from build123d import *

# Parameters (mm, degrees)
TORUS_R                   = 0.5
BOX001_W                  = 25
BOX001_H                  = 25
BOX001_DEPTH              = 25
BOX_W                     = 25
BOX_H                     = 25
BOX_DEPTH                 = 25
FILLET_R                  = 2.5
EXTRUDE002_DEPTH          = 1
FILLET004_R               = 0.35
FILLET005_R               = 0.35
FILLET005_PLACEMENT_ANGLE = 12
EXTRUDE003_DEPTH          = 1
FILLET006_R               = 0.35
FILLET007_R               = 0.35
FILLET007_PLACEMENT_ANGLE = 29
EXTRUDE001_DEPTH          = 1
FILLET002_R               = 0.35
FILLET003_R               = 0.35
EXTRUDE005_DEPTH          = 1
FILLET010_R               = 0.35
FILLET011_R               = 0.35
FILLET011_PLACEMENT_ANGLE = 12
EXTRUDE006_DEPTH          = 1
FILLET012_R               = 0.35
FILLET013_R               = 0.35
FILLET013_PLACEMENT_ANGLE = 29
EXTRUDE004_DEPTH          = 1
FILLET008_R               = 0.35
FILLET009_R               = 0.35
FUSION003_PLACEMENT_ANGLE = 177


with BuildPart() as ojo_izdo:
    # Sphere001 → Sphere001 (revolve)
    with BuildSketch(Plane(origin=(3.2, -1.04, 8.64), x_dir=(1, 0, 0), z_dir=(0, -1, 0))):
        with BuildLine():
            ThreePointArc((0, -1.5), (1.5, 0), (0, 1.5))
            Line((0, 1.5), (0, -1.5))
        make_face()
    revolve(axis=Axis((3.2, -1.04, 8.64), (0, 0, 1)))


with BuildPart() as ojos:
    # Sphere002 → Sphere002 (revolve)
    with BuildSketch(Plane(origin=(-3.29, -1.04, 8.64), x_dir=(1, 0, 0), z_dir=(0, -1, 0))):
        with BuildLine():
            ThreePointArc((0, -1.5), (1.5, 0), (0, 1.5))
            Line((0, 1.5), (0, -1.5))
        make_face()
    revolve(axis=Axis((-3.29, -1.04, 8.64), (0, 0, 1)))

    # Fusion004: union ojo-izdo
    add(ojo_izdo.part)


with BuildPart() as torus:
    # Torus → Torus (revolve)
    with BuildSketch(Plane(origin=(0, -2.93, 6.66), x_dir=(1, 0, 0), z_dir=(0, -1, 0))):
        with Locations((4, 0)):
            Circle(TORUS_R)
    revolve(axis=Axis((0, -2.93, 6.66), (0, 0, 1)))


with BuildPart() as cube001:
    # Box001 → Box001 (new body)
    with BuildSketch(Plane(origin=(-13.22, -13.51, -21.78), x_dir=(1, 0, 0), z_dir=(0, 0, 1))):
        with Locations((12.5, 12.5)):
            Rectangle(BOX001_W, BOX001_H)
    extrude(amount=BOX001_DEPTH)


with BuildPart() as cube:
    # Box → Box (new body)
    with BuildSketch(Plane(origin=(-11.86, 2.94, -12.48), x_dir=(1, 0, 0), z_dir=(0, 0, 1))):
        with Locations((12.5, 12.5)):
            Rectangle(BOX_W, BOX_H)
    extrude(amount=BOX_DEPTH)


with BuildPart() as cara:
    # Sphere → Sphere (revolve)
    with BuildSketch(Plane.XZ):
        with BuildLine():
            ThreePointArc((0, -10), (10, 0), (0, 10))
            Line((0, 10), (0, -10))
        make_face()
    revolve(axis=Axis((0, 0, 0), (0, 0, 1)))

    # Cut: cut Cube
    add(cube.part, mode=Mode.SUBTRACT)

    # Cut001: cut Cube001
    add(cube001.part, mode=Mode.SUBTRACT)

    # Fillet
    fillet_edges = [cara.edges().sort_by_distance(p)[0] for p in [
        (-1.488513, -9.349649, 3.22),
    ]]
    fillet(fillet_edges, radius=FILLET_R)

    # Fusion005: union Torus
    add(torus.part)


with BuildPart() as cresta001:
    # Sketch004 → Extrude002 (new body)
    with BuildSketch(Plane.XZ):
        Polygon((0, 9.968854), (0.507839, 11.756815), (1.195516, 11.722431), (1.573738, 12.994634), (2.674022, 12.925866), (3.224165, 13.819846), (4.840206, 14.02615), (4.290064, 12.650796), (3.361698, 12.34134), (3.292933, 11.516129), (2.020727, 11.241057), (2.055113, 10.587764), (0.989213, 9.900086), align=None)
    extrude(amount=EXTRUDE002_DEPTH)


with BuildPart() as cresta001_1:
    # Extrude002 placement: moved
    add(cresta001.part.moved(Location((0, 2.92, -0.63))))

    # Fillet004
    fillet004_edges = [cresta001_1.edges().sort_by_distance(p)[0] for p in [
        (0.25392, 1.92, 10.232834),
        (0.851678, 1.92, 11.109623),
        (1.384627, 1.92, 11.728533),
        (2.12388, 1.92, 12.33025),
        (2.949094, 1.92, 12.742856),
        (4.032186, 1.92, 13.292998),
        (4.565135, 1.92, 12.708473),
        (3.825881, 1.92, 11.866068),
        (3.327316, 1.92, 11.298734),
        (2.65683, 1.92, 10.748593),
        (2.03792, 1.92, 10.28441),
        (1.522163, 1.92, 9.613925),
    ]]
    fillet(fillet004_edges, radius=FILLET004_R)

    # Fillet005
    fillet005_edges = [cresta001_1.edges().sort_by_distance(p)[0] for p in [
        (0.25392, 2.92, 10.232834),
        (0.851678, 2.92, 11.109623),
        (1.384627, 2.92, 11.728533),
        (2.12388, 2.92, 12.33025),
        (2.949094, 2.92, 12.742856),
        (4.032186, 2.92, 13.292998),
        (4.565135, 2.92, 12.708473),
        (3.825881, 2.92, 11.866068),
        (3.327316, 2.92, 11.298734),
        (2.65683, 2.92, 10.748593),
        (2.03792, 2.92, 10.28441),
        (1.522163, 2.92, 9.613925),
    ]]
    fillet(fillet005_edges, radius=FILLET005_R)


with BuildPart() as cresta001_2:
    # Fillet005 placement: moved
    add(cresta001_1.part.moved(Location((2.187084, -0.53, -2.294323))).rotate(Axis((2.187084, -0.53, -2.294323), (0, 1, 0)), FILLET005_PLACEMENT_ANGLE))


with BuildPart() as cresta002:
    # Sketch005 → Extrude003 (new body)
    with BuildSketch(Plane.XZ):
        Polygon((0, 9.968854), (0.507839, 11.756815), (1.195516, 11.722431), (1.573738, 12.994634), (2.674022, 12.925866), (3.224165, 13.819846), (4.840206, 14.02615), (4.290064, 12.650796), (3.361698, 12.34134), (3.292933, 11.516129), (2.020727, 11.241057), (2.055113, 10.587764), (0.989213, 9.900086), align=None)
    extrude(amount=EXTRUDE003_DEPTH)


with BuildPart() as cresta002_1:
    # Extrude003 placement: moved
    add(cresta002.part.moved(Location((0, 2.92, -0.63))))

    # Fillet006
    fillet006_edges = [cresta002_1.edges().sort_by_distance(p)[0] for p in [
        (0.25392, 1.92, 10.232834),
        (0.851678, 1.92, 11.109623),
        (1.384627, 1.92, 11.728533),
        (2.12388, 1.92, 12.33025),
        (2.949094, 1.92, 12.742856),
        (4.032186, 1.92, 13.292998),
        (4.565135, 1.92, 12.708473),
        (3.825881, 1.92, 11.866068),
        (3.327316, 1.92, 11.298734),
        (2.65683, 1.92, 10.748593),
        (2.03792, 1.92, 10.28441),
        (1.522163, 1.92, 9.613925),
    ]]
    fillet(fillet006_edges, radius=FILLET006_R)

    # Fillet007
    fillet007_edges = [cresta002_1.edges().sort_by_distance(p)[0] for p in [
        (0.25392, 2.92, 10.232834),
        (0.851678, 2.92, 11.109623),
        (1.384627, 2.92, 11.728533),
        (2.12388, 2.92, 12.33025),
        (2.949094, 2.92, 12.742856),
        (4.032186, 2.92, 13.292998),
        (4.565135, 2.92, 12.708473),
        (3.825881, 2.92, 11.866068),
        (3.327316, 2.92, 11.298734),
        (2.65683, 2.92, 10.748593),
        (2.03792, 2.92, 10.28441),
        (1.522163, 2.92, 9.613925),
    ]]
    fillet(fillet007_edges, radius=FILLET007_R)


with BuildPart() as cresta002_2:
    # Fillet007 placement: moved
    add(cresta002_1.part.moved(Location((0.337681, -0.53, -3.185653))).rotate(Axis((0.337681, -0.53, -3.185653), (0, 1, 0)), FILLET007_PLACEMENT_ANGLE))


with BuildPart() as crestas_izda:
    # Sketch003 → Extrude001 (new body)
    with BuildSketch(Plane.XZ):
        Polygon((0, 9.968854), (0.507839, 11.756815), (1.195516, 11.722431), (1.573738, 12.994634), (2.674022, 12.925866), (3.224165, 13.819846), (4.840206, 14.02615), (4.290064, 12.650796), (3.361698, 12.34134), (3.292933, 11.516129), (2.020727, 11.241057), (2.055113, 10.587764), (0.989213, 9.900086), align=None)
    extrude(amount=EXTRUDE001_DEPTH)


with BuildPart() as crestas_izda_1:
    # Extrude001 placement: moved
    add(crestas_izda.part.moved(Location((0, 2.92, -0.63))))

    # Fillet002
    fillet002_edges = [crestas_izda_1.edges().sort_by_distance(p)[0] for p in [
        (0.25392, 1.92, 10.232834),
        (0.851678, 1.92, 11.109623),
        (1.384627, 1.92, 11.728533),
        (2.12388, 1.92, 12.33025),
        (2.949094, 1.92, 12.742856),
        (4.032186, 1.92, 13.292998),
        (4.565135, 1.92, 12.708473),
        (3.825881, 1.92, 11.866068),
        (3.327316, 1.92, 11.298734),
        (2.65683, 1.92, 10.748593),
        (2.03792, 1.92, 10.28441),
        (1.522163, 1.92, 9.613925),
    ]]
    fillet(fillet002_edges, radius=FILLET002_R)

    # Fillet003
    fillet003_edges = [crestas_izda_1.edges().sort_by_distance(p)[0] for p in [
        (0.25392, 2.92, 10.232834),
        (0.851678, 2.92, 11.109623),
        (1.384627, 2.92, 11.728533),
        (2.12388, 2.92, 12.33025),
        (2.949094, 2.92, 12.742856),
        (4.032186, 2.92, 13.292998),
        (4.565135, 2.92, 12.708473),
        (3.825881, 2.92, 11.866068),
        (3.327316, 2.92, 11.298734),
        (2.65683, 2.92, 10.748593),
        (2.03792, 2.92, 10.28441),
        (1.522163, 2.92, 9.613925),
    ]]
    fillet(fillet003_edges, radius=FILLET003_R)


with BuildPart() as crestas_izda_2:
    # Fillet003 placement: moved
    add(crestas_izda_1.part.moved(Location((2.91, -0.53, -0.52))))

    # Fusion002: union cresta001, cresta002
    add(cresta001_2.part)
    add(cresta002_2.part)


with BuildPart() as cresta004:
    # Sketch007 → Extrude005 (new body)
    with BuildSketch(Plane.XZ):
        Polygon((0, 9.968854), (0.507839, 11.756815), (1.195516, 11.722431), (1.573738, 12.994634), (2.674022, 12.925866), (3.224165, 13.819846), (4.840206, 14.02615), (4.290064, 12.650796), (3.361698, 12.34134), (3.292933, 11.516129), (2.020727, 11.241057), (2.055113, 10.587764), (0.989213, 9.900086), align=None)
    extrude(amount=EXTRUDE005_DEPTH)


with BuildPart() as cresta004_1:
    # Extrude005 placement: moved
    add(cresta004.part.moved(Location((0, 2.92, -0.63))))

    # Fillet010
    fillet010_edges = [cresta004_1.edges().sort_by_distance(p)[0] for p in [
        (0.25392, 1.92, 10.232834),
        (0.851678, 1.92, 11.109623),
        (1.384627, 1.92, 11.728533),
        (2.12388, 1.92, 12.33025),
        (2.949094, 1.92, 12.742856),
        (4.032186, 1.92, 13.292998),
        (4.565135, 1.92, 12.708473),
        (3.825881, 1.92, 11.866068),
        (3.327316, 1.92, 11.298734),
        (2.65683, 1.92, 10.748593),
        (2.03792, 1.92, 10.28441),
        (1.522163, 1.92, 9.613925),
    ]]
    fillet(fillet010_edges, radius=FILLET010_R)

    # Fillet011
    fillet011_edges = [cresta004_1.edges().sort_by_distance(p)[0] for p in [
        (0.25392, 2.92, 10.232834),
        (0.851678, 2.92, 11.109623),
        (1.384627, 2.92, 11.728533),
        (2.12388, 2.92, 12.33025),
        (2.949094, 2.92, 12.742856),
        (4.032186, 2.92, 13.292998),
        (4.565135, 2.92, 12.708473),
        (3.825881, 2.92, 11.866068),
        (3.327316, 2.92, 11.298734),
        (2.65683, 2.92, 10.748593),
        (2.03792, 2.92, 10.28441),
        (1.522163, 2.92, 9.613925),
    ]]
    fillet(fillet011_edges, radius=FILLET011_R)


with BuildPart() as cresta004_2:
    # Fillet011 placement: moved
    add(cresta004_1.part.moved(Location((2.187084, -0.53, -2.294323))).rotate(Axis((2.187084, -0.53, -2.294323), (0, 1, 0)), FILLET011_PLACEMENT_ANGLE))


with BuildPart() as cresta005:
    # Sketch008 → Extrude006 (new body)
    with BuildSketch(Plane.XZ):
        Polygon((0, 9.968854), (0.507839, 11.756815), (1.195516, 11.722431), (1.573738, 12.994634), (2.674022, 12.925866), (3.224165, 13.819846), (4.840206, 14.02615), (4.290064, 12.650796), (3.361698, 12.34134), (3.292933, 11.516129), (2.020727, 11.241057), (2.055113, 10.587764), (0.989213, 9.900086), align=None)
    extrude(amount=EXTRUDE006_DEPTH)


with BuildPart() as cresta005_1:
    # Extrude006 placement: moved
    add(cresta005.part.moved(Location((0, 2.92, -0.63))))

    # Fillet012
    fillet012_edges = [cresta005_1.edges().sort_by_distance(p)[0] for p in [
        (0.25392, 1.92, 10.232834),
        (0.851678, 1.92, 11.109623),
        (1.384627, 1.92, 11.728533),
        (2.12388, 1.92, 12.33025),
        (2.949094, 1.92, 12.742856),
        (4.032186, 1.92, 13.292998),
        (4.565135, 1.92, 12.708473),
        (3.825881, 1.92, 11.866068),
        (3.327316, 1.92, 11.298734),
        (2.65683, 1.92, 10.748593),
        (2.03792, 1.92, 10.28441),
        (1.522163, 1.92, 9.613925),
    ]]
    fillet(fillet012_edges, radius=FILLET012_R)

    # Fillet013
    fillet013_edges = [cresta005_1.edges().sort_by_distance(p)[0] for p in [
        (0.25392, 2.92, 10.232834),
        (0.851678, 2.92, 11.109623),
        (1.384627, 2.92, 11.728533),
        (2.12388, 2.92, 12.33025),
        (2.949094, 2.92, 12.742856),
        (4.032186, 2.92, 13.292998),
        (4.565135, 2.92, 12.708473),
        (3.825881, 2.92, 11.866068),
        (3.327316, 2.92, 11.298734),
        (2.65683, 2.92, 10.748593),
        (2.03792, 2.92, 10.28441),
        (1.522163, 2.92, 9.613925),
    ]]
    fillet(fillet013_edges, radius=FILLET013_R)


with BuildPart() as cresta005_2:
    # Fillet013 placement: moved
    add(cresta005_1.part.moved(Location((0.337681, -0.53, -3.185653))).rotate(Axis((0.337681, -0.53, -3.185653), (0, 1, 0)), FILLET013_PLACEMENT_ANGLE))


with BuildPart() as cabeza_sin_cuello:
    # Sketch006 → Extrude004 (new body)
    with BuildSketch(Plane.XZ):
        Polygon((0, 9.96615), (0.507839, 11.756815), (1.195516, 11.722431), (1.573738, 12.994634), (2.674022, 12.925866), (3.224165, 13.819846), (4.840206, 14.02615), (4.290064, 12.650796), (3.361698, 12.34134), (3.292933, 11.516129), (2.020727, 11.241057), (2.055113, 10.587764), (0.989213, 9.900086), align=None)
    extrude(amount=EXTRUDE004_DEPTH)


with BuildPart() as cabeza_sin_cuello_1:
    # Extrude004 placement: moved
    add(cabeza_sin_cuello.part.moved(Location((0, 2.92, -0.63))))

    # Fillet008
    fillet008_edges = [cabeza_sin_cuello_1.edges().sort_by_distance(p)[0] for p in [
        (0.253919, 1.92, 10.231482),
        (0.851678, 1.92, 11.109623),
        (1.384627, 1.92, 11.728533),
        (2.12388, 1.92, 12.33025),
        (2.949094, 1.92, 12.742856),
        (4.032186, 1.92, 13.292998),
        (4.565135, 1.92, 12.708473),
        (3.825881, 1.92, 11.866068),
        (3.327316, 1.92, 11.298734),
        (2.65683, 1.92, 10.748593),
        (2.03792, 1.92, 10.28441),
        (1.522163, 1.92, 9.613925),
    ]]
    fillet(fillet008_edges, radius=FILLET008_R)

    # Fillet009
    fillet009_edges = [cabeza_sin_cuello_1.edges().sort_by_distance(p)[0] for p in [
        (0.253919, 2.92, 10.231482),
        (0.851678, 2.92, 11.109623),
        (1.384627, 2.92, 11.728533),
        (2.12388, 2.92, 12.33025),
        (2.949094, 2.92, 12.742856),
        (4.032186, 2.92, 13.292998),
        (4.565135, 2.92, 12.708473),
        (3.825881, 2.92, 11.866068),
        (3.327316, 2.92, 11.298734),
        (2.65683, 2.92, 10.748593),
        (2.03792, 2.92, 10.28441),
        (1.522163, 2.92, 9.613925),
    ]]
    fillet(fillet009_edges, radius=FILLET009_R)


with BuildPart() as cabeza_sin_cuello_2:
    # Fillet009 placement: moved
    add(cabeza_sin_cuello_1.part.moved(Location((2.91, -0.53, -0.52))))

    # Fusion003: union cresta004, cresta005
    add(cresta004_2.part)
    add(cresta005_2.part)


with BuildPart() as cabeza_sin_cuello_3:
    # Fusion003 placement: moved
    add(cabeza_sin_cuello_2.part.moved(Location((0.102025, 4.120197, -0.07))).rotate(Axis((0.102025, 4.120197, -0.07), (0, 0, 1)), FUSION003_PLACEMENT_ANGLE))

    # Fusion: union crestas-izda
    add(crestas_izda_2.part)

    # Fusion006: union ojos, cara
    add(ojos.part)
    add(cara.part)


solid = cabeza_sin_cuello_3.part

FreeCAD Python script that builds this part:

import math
import FreeCAD as App
import Part
import Sketcher

V = App.Vector


def edges_at(feature, points):
    """Names of the edges that pass closest to the given points."""
    edges = feature.Shape.Edges
    near = lambda p: min(range(len(edges)), key=lambda i: edges[i].distToShape(Part.Vertex(*p))[0])
    return sorted({f"Edge{near(p) + 1}" for p in points})

doc = App.newDocument("Part")
body = doc.addObject("PartDesign::Body", "Body")

# Sketch on XZ plane
sketch1 = body.newObject("Sketcher::SketchObject", "Sketch")
sketch1.AttachmentSupport = (doc.getObject("XZ_Plane"), [""])
sketch1.MapMode = "FlatFace"
sketch1.AttachmentOffset = App.Placement(V(0, 0, 1.04), App.Rotation())
sketch1.addGeometry([
    Part.ArcOfCircle(Part.Circle(V(3.2, 8.64, 0), V(0, 0, 1), 1.5), math.radians(-90), math.radians(90)),
    Part.LineSegment(V(3.2, 10.14, 0), V(3.2, 7.14, 0)),
], False)
sketch1.addGeometry(Part.LineSegment(V(3.2, 7.14, 0), V(3.2, 10.14, 0)), True)  # axis
sketch1.addConstraint([
    Sketcher.Constraint("Coincident", 0, 1, 1, 2),
    Sketcher.Constraint("Coincident", 1, 1, 0, 2),
    Sketcher.Constraint("Vertical", 1),
    Sketcher.Constraint("Vertical", 2),
    Sketcher.Constraint("Coincident", 2, 1, 0, 1),
    Sketcher.Constraint("Equal", 1, 2),
    Sketcher.Constraint("Radius", 0, 1.5),
    Sketcher.Constraint("DistanceX", -1, 1, 0, 3, 3.2),
    Sketcher.Constraint("DistanceX", -1, 1, 0, 1, 3.2),
    Sketcher.Constraint("DistanceY", -1, 1, 0, 3, 8.64),
])
revolution = body.newObject("PartDesign::Revolution", "Revolution")
revolution.Profile = sketch1
revolution.ReferenceAxis = (sketch1, ["Axis0"])
revolution.Angle = 360
body2 = doc.addObject("PartDesign::Body", "Body001")
body2.AllowCompound = True

# Sketch on XZ plane
sketch2 = body2.newObject("Sketcher::SketchObject", "Sketch001")
sketch2.AttachmentSupport = (doc.getObject("XZ_Plane001"), [""])
sketch2.MapMode = "FlatFace"
sketch2.AttachmentOffset = App.Placement(V(0, 0, 1.04), App.Rotation())
sketch2.addGeometry([
    Part.ArcOfCircle(Part.Circle(V(-3.29, 8.64, 0), V(0, 0, 1), 1.5), math.radians(-90), math.radians(90)),
    Part.LineSegment(V(-3.29, 10.14, 0), V(-3.29, 7.14, 0)),
], False)
sketch2.addGeometry(Part.LineSegment(V(-3.29, 7.14, 0), V(-3.29, 10.14, 0)), True)  # axis
sketch2.addConstraint([
    Sketcher.Constraint("Coincident", 0, 1, 1, 2),
    Sketcher.Constraint("Coincident", 1, 1, 0, 2),
    Sketcher.Constraint("Vertical", 1),
    Sketcher.Constraint("Vertical", 2),
    Sketcher.Constraint("Coincident", 2, 1, 0, 1),
    Sketcher.Constraint("Equal", 1, 2),
    Sketcher.Constraint("Radius", 0, 1.5),
    Sketcher.Constraint("DistanceX", 0, 3, -1, 1, 3.29),
    Sketcher.Constraint("DistanceY", -1, 1, 0, 3, 8.64),
    Sketcher.Constraint("DistanceX", 0, 1, -1, 1, 3.29),
])
revolution2 = body2.newObject("PartDesign::Revolution", "Revolution001")
revolution2.Profile = sketch2
revolution2.ReferenceAxis = (sketch2, ["Axis0"])
revolution2.Angle = 360
doc.recompute()

boolean = body2.newObject("PartDesign::Boolean", "Boolean")
boolean.Type = "Fuse"
boolean.addObjects([body])
body3 = doc.addObject("PartDesign::Body", "Body002")

# Sketch on XZ plane
sketch3 = body3.newObject("Sketcher::SketchObject", "Sketch002")
sketch3.AttachmentSupport = (doc.getObject("XZ_Plane002"), [""])
sketch3.MapMode = "FlatFace"
sketch3.AttachmentOffset = App.Placement(V(0, 0, 2.93), App.Rotation())
sketch3.addGeometry(Part.Circle(V(4, 6.66, 0), V(0, 0, 1), 0.5), False)
sketch3.addConstraint([
    Sketcher.Constraint("Diameter", 0, 1.0),
    Sketcher.Constraint("DistanceX", -1, 1, 0, 3, 4.0),
    Sketcher.Constraint("DistanceY", -1, 1, 0, 3, 6.66),
])
revolution3 = body3.newObject("PartDesign::Revolution", "Revolution002")
revolution3.Profile = sketch3
revolution3.ReferenceAxis = (sketch3, ["V_Axis"])
revolution3.Angle = 360
body4 = doc.addObject("PartDesign::Body", "Body003")

# Sketch on XY plane
sketch4 = body4.newObject("Sketcher::SketchObject", "Sketch003")
sketch4.AttachmentSupport = (doc.getObject("XY_Plane003"), [""])
sketch4.MapMode = "FlatFace"
sketch4.AttachmentOffset = App.Placement(V(0, 0, -21.78), App.Rotation())
sketch4.addGeometry([
    Part.LineSegment(V(-13.22, 11.49, 0), V(-13.22, -13.51, 0)),
    Part.LineSegment(V(-13.22, -13.51, 0), V(11.78, -13.51, 0)),
    Part.LineSegment(V(11.78, -13.51, 0), V(11.78, 11.49, 0)),
    Part.LineSegment(V(11.78, 11.49, 0), V(-13.22, 11.49, 0)),
], False)
sketch4.addConstraint([
    Sketcher.Constraint("Coincident", 0, 2, 1, 1),
    Sketcher.Constraint("Coincident", 1, 2, 2, 1),
    Sketcher.Constraint("Coincident", 2, 2, 3, 1),
    Sketcher.Constraint("Coincident", 3, 2, 0, 1),
    Sketcher.Constraint("Vertical", 0),
    Sketcher.Constraint("Horizontal", 1),
    Sketcher.Constraint("Vertical", 2),
    Sketcher.Constraint("Horizontal", 3),
    Sketcher.Constraint("Equal", 3, 0),
    Sketcher.Constraint("DistanceX", 1, 1, 1, 2, 25.0),
    Sketcher.Constraint("DistanceX", 0, 2, -1, 1, 13.22),
    Sketcher.Constraint("DistanceY", 0, 2, -1, 1, 13.51),
])
pad1 = body4.newObject("PartDesign::Pad", "Pad")
pad1.Profile = sketch4
pad1.Length = 25
body5 = doc.addObject("PartDesign::Body", "Body004")

# Sketch on XY plane
sketch5 = body5.newObject("Sketcher::SketchObject", "Sketch004")
sketch5.AttachmentSupport = (doc.getObject("XY_Plane004"), [""])
sketch5.MapMode = "FlatFace"
sketch5.AttachmentOffset = App.Placement(V(0, 0, -12.48), App.Rotation())
sketch5.addGeometry([
    Part.LineSegment(V(-11.86, 27.94, 0), V(-11.86, 2.94, 0)),
    Part.LineSegment(V(-11.86, 2.94, 0), V(13.14, 2.94, 0)),
    Part.LineSegment(V(13.14, 2.94, 0), V(13.14, 27.94, 0)),
    Part.LineSegment(V(13.14, 27.94, 0), V(-11.86, 27.94, 0)),
], False)
sketch5.addConstraint([
    Sketcher.Constraint("Coincident", 0, 2, 1, 1),
    Sketcher.Constraint("Coincident", 1, 2, 2, 1),
    Sketcher.Constraint("Coincident", 2, 2, 3, 1),
    Sketcher.Constraint("Coincident", 3, 2, 0, 1),
    Sketcher.Constraint("Vertical", 0),
    Sketcher.Constraint("Horizontal", 1),
    Sketcher.Constraint("Vertical", 2),
    Sketcher.Constraint("Horizontal", 3),
    Sketcher.Constraint("Equal", 3, 0),
    Sketcher.Constraint("DistanceX", 1, 1, 1, 2, 25.0),
    Sketcher.Constraint("DistanceX", 0, 2, -1, 1, 11.86),
    Sketcher.Constraint("DistanceY", -1, 1, 0, 2, 2.94),
])
pad2 = body5.newObject("PartDesign::Pad", "Pad001")
pad2.Profile = sketch5
pad2.Length = 25
body6 = doc.addObject("PartDesign::Body", "Body005")

# Sketch on XZ plane
sketch6 = body6.newObject("Sketcher::SketchObject", "Sketch005")
sketch6.AttachmentSupport = (doc.getObject("XZ_Plane005"), [""])
sketch6.MapMode = "FlatFace"
sketch6.addGeometry([
    Part.ArcOfCircle(Part.Circle(V(0, 0, 0), V(0, 0, 1), 10), math.radians(-90), math.radians(90)),
    Part.LineSegment(V(0, 10, 0), V(0, -10, 0)),
], False)
sketch6.addConstraint([
    Sketcher.Constraint("Coincident", 0, 1, 1, 2),
    Sketcher.Constraint("Coincident", 1, 1, 0, 2),
    Sketcher.Constraint("Vertical", 1),
    Sketcher.Constraint("Coincident", 0, 3, -1, 1),
    Sketcher.Constraint("PointOnObject", 0, 1, -2),
    Sketcher.Constraint("Radius", 0, 10.0),
])
revolution4 = body6.newObject("PartDesign::Revolution", "Revolution003")
revolution4.Profile = sketch6
revolution4.ReferenceAxis = (sketch6, ["V_Axis"])
revolution4.Angle = 360
doc.recompute()

boolean2 = body6.newObject("PartDesign::Boolean", "Boolean001")
boolean2.Type = "Cut"
boolean2.addObjects([body5])
doc.recompute()

boolean3 = body6.newObject("PartDesign::Boolean", "Boolean002")
boolean3.Type = "Cut"
boolean3.addObjects([body4])
doc.recompute()

fillet = body6.newObject("PartDesign::Fillet", "Fillet")
fillet.Base = (boolean3, edges_at(boolean3, [(-1.489, -9.35, 3.22)]))
fillet.Radius = 2.5
doc.recompute()

boolean4 = body6.newObject("PartDesign::Boolean", "Boolean003")
boolean4.Type = "Fuse"
boolean4.addObjects([body3])
body7 = doc.addObject("PartDesign::Body", "Body006")

# Sketch on XZ plane
sketch7 = body7.newObject("Sketcher::SketchObject", "Sketch006")
sketch7.AttachmentSupport = (doc.getObject("XZ_Plane006"), [""])
sketch7.MapMode = "FlatFace"
sketch7.addGeometry([
    Part.LineSegment(V(0.507839, 11.756815, 0), V(0, 9.968854, 0)),  # 0
    Part.LineSegment(V(0, 9.968854, 0), V(0.989213, 9.900086, 0)),  # 1
    Part.LineSegment(V(0.989213, 9.900086, 0), V(2.055113, 10.587764, 0)),  # 2
    Part.LineSegment(V(2.055113, 10.587764, 0), V(2.020727, 11.241057, 0)),  # 3
    Part.LineSegment(V(2.020727, 11.241057, 0), V(3.292933, 11.516129, 0)),  # 4
    Part.LineSegment(V(3.292933, 11.516129, 0), V(3.361698, 12.34134, 0)),  # 5
    Part.LineSegment(V(3.361698, 12.34134, 0), V(4.290064, 12.650796, 0)),  # 6
    Part.LineSegment(V(4.290064, 12.650796, 0), V(4.840206, 14.02615, 0)),  # 7
    Part.LineSegment(V(4.840206, 14.02615, 0), V(3.224165, 13.819846, 0)),  # 8
    Part.LineSegment(V(3.224165, 13.819846, 0), V(2.674022, 12.925866, 0)),  # 9
    Part.LineSegment(V(2.674022, 12.925866, 0), V(1.573738, 12.994634, 0)),  # 10
    Part.LineSegment(V(1.573738, 12.994634, 0), V(1.195516, 11.722431, 0)),  # 11
    Part.LineSegment(V(1.195516, 11.722431, 0), V(0.507839, 11.756815, 0)),  # 12
], False)
sketch7.addConstraint([
    Sketcher.Constraint("Coincident", 0, 2, 1, 1),
    Sketcher.Constraint("Coincident", 1, 2, 2, 1),
    Sketcher.Constraint("Coincident", 2, 2, 3, 1),
    Sketcher.Constraint("Coincident", 3, 2, 4, 1),
    Sketcher.Constraint("Coincident", 4, 2, 5, 1),
    Sketcher.Constraint("Coincident", 5, 2, 6, 1),
    Sketcher.Constraint("Coincident", 6, 2, 7, 1),
    Sketcher.Constraint("Coincident", 7, 2, 8, 1),
    Sketcher.Constraint("Coincident", 8, 2, 9, 1),
    Sketcher.Constraint("Coincident", 9, 2, 10, 1),
    Sketcher.Constraint("Coincident", 10, 2, 11, 1),
    Sketcher.Constraint("Coincident", 11, 2, 12, 1),
    Sketcher.Constraint("Coincident", 12, 2, 0, 1),
    Sketcher.Constraint("PointOnObject", 0, 2, -2),
    Sketcher.Constraint("Distance", 1, 0.9916),
    Sketcher.Constraint("Distance", 7, 1.481302),
    Sketcher.Constraint("DistanceX", -1, 1, 5, 2, 3.361698),
    Sketcher.Constraint("DistanceX", 1, 2, 2, 2, 1.0659),
    Sketcher.Constraint("DistanceX", 8, 2, 6, 2, 1.065899),
    Sketcher.Constraint("DistanceX", 12, 2, 10, 2, 1.065899),
    Sketcher.Constraint("Distance", 2, 1.268481),
    Sketcher.Constraint("Distance", 5, 0.828071),
    Sketcher.Constraint("Distance", 10, 1.102431),
    Sketcher.Constraint("DistanceY", -1, 1, 4, 2, 11.516129),
    Sketcher.Constraint("DistanceY", -1, 1, 5, 2, 12.34134),
    Sketcher.Constraint("DistanceY", -1, 1, 7, 2, 14.02615),
    Sketcher.Constraint("DistanceX", -1, 1, 9, 2, 2.674022),
    Sketcher.Constraint("DistanceX", -1, 1, 10, 2, 1.573738),
    Sketcher.Constraint("DistanceY", -1, 1, 11, 2, 11.722431),
    Sketcher.Constraint("DistanceY", 1, 2, 0, 2, 0.068768),
    Sketcher.Constraint("DistanceY", 1, 2, 3, 2, 1.340971),
    Sketcher.Constraint("DistanceY", 3, 2, 4, 2, 0.275072),
    Sketcher.Constraint("DistanceX", 3, 2, 5, 2, 1.340971),
    Sketcher.Constraint("DistanceX", 4, 2, 6, 2, 0.997131),
    Sketcher.Constraint("DistanceY", 3, 2, 6, 2, 1.409739),
    Sketcher.Constraint("DistanceY", 6, 2, 8, 2, 1.16905),
    Sketcher.Constraint("DistanceY", 9, 2, 8, 2, 0.89398),
    Sketcher.Constraint("DistanceX", 11, 2, 3, 2, 0.825211),
    Sketcher.Constraint("DistanceY", 12, 2, 10, 2, 1.237819),
])
pad3 = body7.newObject("PartDesign::Pad", "Pad002")
pad3.Profile = sketch7
pad3.Length = 1
body8 = doc.addObject("PartDesign::Body", "Body007")
doc.recompute()

body7.Placement = App.Placement(V(0, 2.92, -0.63), App.Rotation(V(0, 0, 1), 0))
boolean5 = body8.newObject("PartDesign::Boolean", "Boolean004")
boolean5.Type = "Fuse"
boolean5.addObjects([body7])
doc.recompute()

fillet2 = body8.newObject("PartDesign::Fillet", "Fillet001")
fillet2.Base = (boolean5, edges_at(boolean5, [
    (0.254, 1.92, 10.233),
    (0.852, 1.92, 11.11),
    (1.385, 1.92, 11.729),
    (2.124, 1.92, 12.33),
    (2.949, 1.92, 12.743),
    (4.032, 1.92, 13.293),
    (4.565, 1.92, 12.708),
    (3.826, 1.92, 11.866),
    (3.327, 1.92, 11.299),
    (2.657, 1.92, 10.749),
    (2.038, 1.92, 10.284),
    (1.522, 1.92, 9.614),
]))
fillet2.Radius = 0.35
doc.recompute()

fillet3 = body8.newObject("PartDesign::Fillet", "Fillet002")
fillet3.Base = (fillet2, edges_at(fillet2, [
    (0.254, 2.92, 10.233),
    (0.852, 2.92, 11.11),
    (1.385, 2.92, 11.729),
    (2.124, 2.92, 12.33),
    (2.949, 2.92, 12.743),
    (4.032, 2.92, 13.293),
    (4.565, 2.92, 12.708),
    (3.826, 2.92, 11.866),
    (3.327, 2.92, 11.299),
    (2.657, 2.92, 10.749),
    (2.038, 2.92, 10.284),
    (1.522, 2.92, 9.614),
]))
fillet3.Radius = 0.35
body9 = doc.addObject("PartDesign::Body", "Body008")
doc.recompute()

body8.Placement = App.Placement(V(2.187084, -0.53, -2.294323), App.Rotation(V(0, 1, 0), 12))
boolean6 = body9.newObject("PartDesign::Boolean", "Boolean005")
boolean6.Type = "Fuse"
boolean6.addObjects([body8])
body10 = doc.addObject("PartDesign::Body", "Body009")

# Sketch on XZ plane
sketch8 = body10.newObject("Sketcher::SketchObject", "Sketch007")
sketch8.AttachmentSupport = (doc.getObject("XZ_Plane009"), [""])
sketch8.MapMode = "FlatFace"
sketch8.addGeometry([
    Part.LineSegment(V(0.507839, 11.756815, 0), V(0, 9.968854, 0)),  # 0
    Part.LineSegment(V(0, 9.968854, 0), V(0.989213, 9.900086, 0)),  # 1
    Part.LineSegment(V(0.989213, 9.900086, 0), V(2.055113, 10.587764, 0)),  # 2
    Part.LineSegment(V(2.055113, 10.587764, 0), V(2.020727, 11.241057, 0)),  # 3
    Part.LineSegment(V(2.020727, 11.241057, 0), V(3.292933, 11.516129, 0)),  # 4
    Part.LineSegment(V(3.292933, 11.516129, 0), V(3.361698, 12.34134, 0)),  # 5
    Part.LineSegment(V(3.361698, 12.34134, 0), V(4.290064, 12.650796, 0)),  # 6
    Part.LineSegment(V(4.290064, 12.650796, 0), V(4.840206, 14.02615, 0)),  # 7
    Part.LineSegment(V(4.840206, 14.02615, 0), V(3.224165, 13.819846, 0)),  # 8
    Part.LineSegment(V(3.224165, 13.819846, 0), V(2.674022, 12.925866, 0)),  # 9
    Part.LineSegment(V(2.674022, 12.925866, 0), V(1.573738, 12.994634, 0)),  # 10
    Part.LineSegment(V(1.573738, 12.994634, 0), V(1.195516, 11.722431, 0)),  # 11
    Part.LineSegment(V(1.195516, 11.722431, 0), V(0.507839, 11.756815, 0)),  # 12
], False)
sketch8.addConstraint([
    Sketcher.Constraint("Coincident", 0, 2, 1, 1),
    Sketcher.Constraint("Coincident", 1, 2, 2, 1),
    Sketcher.Constraint("Coincident", 2, 2, 3, 1),
    Sketcher.Constraint("Coincident", 3, 2, 4, 1),
    Sketcher.Constraint("Coincident", 4, 2, 5, 1),
    Sketcher.Constraint("Coincident", 5, 2, 6, 1),
    Sketcher.Constraint("Coincident", 6, 2, 7, 1),
    Sketcher.Constraint("Coincident", 7, 2, 8, 1),
    Sketcher.Constraint("Coincident", 8, 2, 9, 1),
    Sketcher.Constraint("Coincident", 9, 2, 10, 1),
    Sketcher.Constraint("Coincident", 10, 2, 11, 1),
    Sketcher.Constraint("Coincident", 11, 2, 12, 1),
    Sketcher.Constraint("Coincident", 12, 2, 0, 1),
    Sketcher.Constraint("PointOnObject", 0, 2, -2),
    Sketcher.Constraint("Distance", 1, 0.9916),
    Sketcher.Constraint("Distance", 7, 1.481302),
    Sketcher.Constraint("DistanceX", -1, 1, 5, 2, 3.361698),
    Sketcher.Constraint("DistanceX", 1, 2, 2, 2, 1.0659),
    Sketcher.Constraint("DistanceX", 8, 2, 6, 2, 1.065899),
    Sketcher.Constraint("DistanceX", 12, 2, 10, 2, 1.065899),
    Sketcher.Constraint("Distance", 2, 1.268481),
    Sketcher.Constraint("Distance", 5, 0.828071),
    Sketcher.Constraint("Distance", 10, 1.102431),
    Sketcher.Constraint("DistanceY", -1, 1, 4, 2, 11.516129),
    Sketcher.Constraint("DistanceY", -1, 1, 5, 2, 12.34134),
    Sketcher.Constraint("DistanceY", -1, 1, 7, 2, 14.02615),
    Sketcher.Constraint("DistanceX", -1, 1, 9, 2, 2.674022),
    Sketcher.Constraint("DistanceX", -1, 1, 10, 2, 1.573738),
    Sketcher.Constraint("DistanceY", -1, 1, 11, 2, 11.722431),
    Sketcher.Constraint("DistanceY", 1, 2, 0, 2, 0.068768),
    Sketcher.Constraint("DistanceY", 1, 2, 3, 2, 1.340971),
    Sketcher.Constraint("DistanceY", 3, 2, 4, 2, 0.275072),
    Sketcher.Constraint("DistanceX", 3, 2, 5, 2, 1.340971),
    Sketcher.Constraint("DistanceX", 4, 2, 6, 2, 0.997131),
    Sketcher.Constraint("DistanceY", 3, 2, 6, 2, 1.409739),
    Sketcher.Constraint("DistanceY", 6, 2, 8, 2, 1.16905),
    Sketcher.Constraint("DistanceY", 9, 2, 8, 2, 0.89398),
    Sketcher.Constraint("DistanceX", 11, 2, 3, 2, 0.825211),
    Sketcher.Constraint("DistanceY", 12, 2, 10, 2, 1.237819),
])
pad4 = body10.newObject("PartDesign::Pad", "Pad003")
pad4.Profile = sketch8
pad4.Length = 1
body11 = doc.addObject("PartDesign::Body", "Body010")
doc.recompute()

body10.Placement = App.Placement(V(0, 2.92, -0.63), App.Rotation(V(0, 0, 1), 0))
boolean7 = body11.newObject("PartDesign::Boolean", "Boolean006")
boolean7.Type = "Fuse"
boolean7.addObjects([body10])
doc.recompute()

fillet4 = body11.newObject("PartDesign::Fillet", "Fillet003")
fillet4.Base = (boolean7, edges_at(boolean7, [
    (0.254, 1.92, 10.233),
    (0.852, 1.92, 11.11),
    (1.385, 1.92, 11.729),
    (2.124, 1.92, 12.33),
    (2.949, 1.92, 12.743),
    (4.032, 1.92, 13.293),
    (4.565, 1.92, 12.708),
    (3.826, 1.92, 11.866),
    (3.327, 1.92, 11.299),
    (2.657, 1.92, 10.749),
    (2.038, 1.92, 10.284),
    (1.522, 1.92, 9.614),
]))
fillet4.Radius = 0.35
doc.recompute()

fillet5 = body11.newObject("PartDesign::Fillet", "Fillet004")
fillet5.Base = (fillet4, edges_at(fillet4, [
    (0.254, 2.92, 10.233),
    (0.852, 2.92, 11.11),
    (1.385, 2.92, 11.729),
    (2.124, 2.92, 12.33),
    (2.949, 2.92, 12.743),
    (4.032, 2.92, 13.293),
    (4.565, 2.92, 12.708),
    (3.826, 2.92, 11.866),
    (3.327, 2.92, 11.299),
    (2.657, 2.92, 10.749),
    (2.038, 2.92, 10.284),
    (1.522, 2.92, 9.614),
]))
fillet5.Radius = 0.35
body12 = doc.addObject("PartDesign::Body", "Body011")
doc.recompute()

body11.Placement = App.Placement(V(0.337681, -0.53, -3.185653), App.Rotation(V(0, 1, 0), 29))
boolean8 = body12.newObject("PartDesign::Boolean", "Boolean007")
boolean8.Type = "Fuse"
boolean8.addObjects([body11])
body13 = doc.addObject("PartDesign::Body", "Body012")

# Sketch on XZ plane
sketch9 = body13.newObject("Sketcher::SketchObject", "Sketch008")
sketch9.AttachmentSupport = (doc.getObject("XZ_Plane012"), [""])
sketch9.MapMode = "FlatFace"
sketch9.addGeometry([
    Part.LineSegment(V(0.507839, 11.756815, 0), V(0, 9.968854, 0)),  # 0
    Part.LineSegment(V(0, 9.968854, 0), V(0.989213, 9.900086, 0)),  # 1
    Part.LineSegment(V(0.989213, 9.900086, 0), V(2.055113, 10.587764, 0)),  # 2
    Part.LineSegment(V(2.055113, 10.587764, 0), V(2.020727, 11.241057, 0)),  # 3
    Part.LineSegment(V(2.020727, 11.241057, 0), V(3.292933, 11.516129, 0)),  # 4
    Part.LineSegment(V(3.292933, 11.516129, 0), V(3.361698, 12.34134, 0)),  # 5
    Part.LineSegment(V(3.361698, 12.34134, 0), V(4.290064, 12.650796, 0)),  # 6
    Part.LineSegment(V(4.290064, 12.650796, 0), V(4.840206, 14.02615, 0)),  # 7
    Part.LineSegment(V(4.840206, 14.02615, 0), V(3.224165, 13.819846, 0)),  # 8
    Part.LineSegment(V(3.224165, 13.819846, 0), V(2.674022, 12.925866, 0)),  # 9
    Part.LineSegment(V(2.674022, 12.925866, 0), V(1.573738, 12.994634, 0)),  # 10
    Part.LineSegment(V(1.573738, 12.994634, 0), V(1.195516, 11.722431, 0)),  # 11
    Part.LineSegment(V(1.195516, 11.722431, 0), V(0.507839, 11.756815, 0)),  # 12
], False)
sketch9.addConstraint([
    Sketcher.Constraint("Coincident", 0, 2, 1, 1),
    Sketcher.Constraint("Coincident", 1, 2, 2, 1),
    Sketcher.Constraint("Coincident", 2, 2, 3, 1),
    Sketcher.Constraint("Coincident", 3, 2, 4, 1),
    Sketcher.Constraint("Coincident", 4, 2, 5, 1),
    Sketcher.Constraint("Coincident", 5, 2, 6, 1),
    Sketcher.Constraint("Coincident", 6, 2, 7, 1),
    Sketcher.Constraint("Coincident", 7, 2, 8, 1),
    Sketcher.Constraint("Coincident", 8, 2, 9, 1),
    Sketcher.Constraint("Coincident", 9, 2, 10, 1),
    Sketcher.Constraint("Coincident", 10, 2, 11, 1),
    Sketcher.Constraint("Coincident", 11, 2, 12, 1),
    Sketcher.Constraint("Coincident", 12, 2, 0, 1),
    Sketcher.Constraint("PointOnObject", 0, 2, -2),
    Sketcher.Constraint("Distance", 1, 0.9916),
    Sketcher.Constraint("Distance", 7, 1.481302),
    Sketcher.Constraint("DistanceX", -1, 1, 5, 2, 3.361698),
    Sketcher.Constraint("DistanceX", 1, 2, 2, 2, 1.0659),
    Sketcher.Constraint("DistanceX", 8, 2, 6, 2, 1.065899),
    Sketcher.Constraint("DistanceX", 12, 2, 10, 2, 1.065899),
    Sketcher.Constraint("Distance", 2, 1.268481),
    Sketcher.Constraint("Distance", 5, 0.828071),
    Sketcher.Constraint("Distance", 10, 1.102431),
    Sketcher.Constraint("DistanceY", -1, 1, 4, 2, 11.516129),
    Sketcher.Constraint("DistanceY", -1, 1, 5, 2, 12.34134),
    Sketcher.Constraint("DistanceY", -1, 1, 7, 2, 14.02615),
    Sketcher.Constraint("DistanceX", -1, 1, 9, 2, 2.674022),
    Sketcher.Constraint("DistanceX", -1, 1, 10, 2, 1.573738),
    Sketcher.Constraint("DistanceY", -1, 1, 11, 2, 11.722431),
    Sketcher.Constraint("DistanceY", 1, 2, 0, 2, 0.068768),
    Sketcher.Constraint("DistanceY", 1, 2, 3, 2, 1.340971),
    Sketcher.Constraint("DistanceY", 3, 2, 4, 2, 0.275072),
    Sketcher.Constraint("DistanceX", 3, 2, 5, 2, 1.340971),
    Sketcher.Constraint("DistanceX", 4, 2, 6, 2, 0.997131),
    Sketcher.Constraint("DistanceY", 3, 2, 6, 2, 1.409739),
    Sketcher.Constraint("DistanceY", 6, 2, 8, 2, 1.16905),
    Sketcher.Constraint("DistanceY", 9, 2, 8, 2, 0.89398),
    Sketcher.Constraint("DistanceX", 11, 2, 3, 2, 0.825211),
    Sketcher.Constraint("DistanceY", 12, 2, 10, 2, 1.237819),
])
pad5 = body13.newObject("PartDesign::Pad", "Pad004")
pad5.Profile = sketch9
pad5.Length = 1
body14 = doc.addObject("PartDesign::Body", "Body013")
doc.recompute()

body13.Placement = App.Placement(V(0, 2.92, -0.63), App.Rotation(V(0, 0, 1), 0))
boolean9 = body14.newObject("PartDesign::Boolean", "Boolean008")
boolean9.Type = "Fuse"
boolean9.addObjects([body13])
doc.recompute()

fillet6 = body14.newObject("PartDesign::Fillet", "Fillet005")
fillet6.Base = (boolean9, edges_at(boolean9, [
    (0.254, 1.92, 10.233),
    (0.852, 1.92, 11.11),
    (1.385, 1.92, 11.729),
    (2.124, 1.92, 12.33),
    (2.949, 1.92, 12.743),
    (4.032, 1.92, 13.293),
    (4.565, 1.92, 12.708),
    (3.826, 1.92, 11.866),
    (3.327, 1.92, 11.299),
    (2.657, 1.92, 10.749),
    (2.038, 1.92, 10.284),
    (1.522, 1.92, 9.614),
]))
fillet6.Radius = 0.35
doc.recompute()

fillet7 = body14.newObject("PartDesign::Fillet", "Fillet006")
fillet7.Base = (fillet6, edges_at(fillet6, [
    (0.254, 2.92, 10.233),
    (0.852, 2.92, 11.11),
    (1.385, 2.92, 11.729),
    (2.124, 2.92, 12.33),
    (2.949, 2.92, 12.743),
    (4.032, 2.92, 13.293),
    (4.565, 2.92, 12.708),
    (3.826, 2.92, 11.866),
    (3.327, 2.92, 11.299),
    (2.657, 2.92, 10.749),
    (2.038, 2.92, 10.284),
    (1.522, 2.92, 9.614),
]))
fillet7.Radius = 0.35
body15 = doc.addObject("PartDesign::Body", "Body014")
body15.AllowCompound = True
doc.recompute()

body14.Placement = App.Placement(V(2.91, -0.53, -0.52), App.Rotation(V(0, 0, 1), 0))
boolean10 = body15.newObject("PartDesign::Boolean", "Boolean009")
boolean10.Type = "Fuse"
boolean10.addObjects([body14])
doc.recompute()

boolean11 = body15.newObject("PartDesign::Boolean", "Boolean010")
boolean11.Type = "Fuse"
boolean11.addObjects([body9])
doc.recompute()

boolean12 = body15.newObject("PartDesign::Boolean", "Boolean011")
boolean12.Type = "Fuse"
boolean12.addObjects([body12])
body16 = doc.addObject("PartDesign::Body", "Body015")

# Sketch on XZ plane
sketch10 = body16.newObject("Sketcher::SketchObject", "Sketch009")
sketch10.AttachmentSupport = (doc.getObject("XZ_Plane015"), [""])
sketch10.MapMode = "FlatFace"
sketch10.addGeometry([
    Part.LineSegment(V(0.507839, 11.756815, 0), V(0, 9.968854, 0)),  # 0
    Part.LineSegment(V(0, 9.968854, 0), V(0.989213, 9.900086, 0)),  # 1
    Part.LineSegment(V(0.989213, 9.900086, 0), V(2.055113, 10.587764, 0)),  # 2
    Part.LineSegment(V(2.055113, 10.587764, 0), V(2.020727, 11.241057, 0)),  # 3
    Part.LineSegment(V(2.020727, 11.241057, 0), V(3.292933, 11.516129, 0)),  # 4
    Part.LineSegment(V(3.292933, 11.516129, 0), V(3.361698, 12.34134, 0)),  # 5
    Part.LineSegment(V(3.361698, 12.34134, 0), V(4.290064, 12.650796, 0)),  # 6
    Part.LineSegment(V(4.290064, 12.650796, 0), V(4.840206, 14.02615, 0)),  # 7
    Part.LineSegment(V(4.840206, 14.02615, 0), V(3.224165, 13.819846, 0)),  # 8
    Part.LineSegment(V(3.224165, 13.819846, 0), V(2.674022, 12.925866, 0)),  # 9
    Part.LineSegment(V(2.674022, 12.925866, 0), V(1.573738, 12.994634, 0)),  # 10
    Part.LineSegment(V(1.573738, 12.994634, 0), V(1.195516, 11.722431, 0)),  # 11
    Part.LineSegment(V(1.195516, 11.722431, 0), V(0.507839, 11.756815, 0)),  # 12
], False)
sketch10.addConstraint([
    Sketcher.Constraint("Coincident", 0, 2, 1, 1),
    Sketcher.Constraint("Coincident", 1, 2, 2, 1),
    Sketcher.Constraint("Coincident", 2, 2, 3, 1),
    Sketcher.Constraint("Coincident", 3, 2, 4, 1),
    Sketcher.Constraint("Coincident", 4, 2, 5, 1),
    Sketcher.Constraint("Coincident", 5, 2, 6, 1),
    Sketcher.Constraint("Coincident", 6, 2, 7, 1),
    Sketcher.Constraint("Coincident", 7, 2, 8, 1),
    Sketcher.Constraint("Coincident", 8, 2, 9, 1),
    Sketcher.Constraint("Coincident", 9, 2, 10, 1),
    Sketcher.Constraint("Coincident", 10, 2, 11, 1),
    Sketcher.Constraint("Coincident", 11, 2, 12, 1),
    Sketcher.Constraint("Coincident", 12, 2, 0, 1),
    Sketcher.Constraint("PointOnObject", 0, 2, -2),
    Sketcher.Constraint("Distance", 1, 0.9916),
    Sketcher.Constraint("Distance", 7, 1.481302),
    Sketcher.Constraint("DistanceX", -1, 1, 5, 2, 3.361698),
    Sketcher.Constraint("DistanceX", 1, 2, 2, 2, 1.0659),
    Sketcher.Constraint("DistanceX", 8, 2, 6, 2, 1.065899),
    Sketcher.Constraint("DistanceX", 12, 2, 10, 2, 1.065899),
    Sketcher.Constraint("Distance", 2, 1.268481),
    Sketcher.Constraint("Distance", 5, 0.828071),
    Sketcher.Constraint("Distance", 10, 1.102431),
    Sketcher.Constraint("DistanceY", -1, 1, 4, 2, 11.516129),
    Sketcher.Constraint("DistanceY", -1, 1, 5, 2, 12.34134),
    Sketcher.Constraint("DistanceY", -1, 1, 7, 2, 14.02615),
    Sketcher.Constraint("DistanceX", -1, 1, 9, 2, 2.674022),
    Sketcher.Constraint("DistanceX", -1, 1, 10, 2, 1.573738),
    Sketcher.Constraint("DistanceY", -1, 1, 11, 2, 11.722431),
    Sketcher.Constraint("DistanceY", 1, 2, 0, 2, 0.068768),
    Sketcher.Constraint("DistanceY", 1, 2, 3, 2, 1.340971),
    Sketcher.Constraint("DistanceY", 3, 2, 4, 2, 0.275072),
    Sketcher.Constraint("DistanceX", 3, 2, 5, 2, 1.340971),
    Sketcher.Constraint("DistanceX", 4, 2, 6, 2, 0.997131),
    Sketcher.Constraint("DistanceY", 3, 2, 6, 2, 1.409739),
    Sketcher.Constraint("DistanceY", 6, 2, 8, 2, 1.16905),
    Sketcher.Constraint("DistanceY", 9, 2, 8, 2, 0.89398),
    Sketcher.Constraint("DistanceX", 11, 2, 3, 2, 0.825211),
    Sketcher.Constraint("DistanceY", 12, 2, 10, 2, 1.237819),
])
pad6 = body16.newObject("PartDesign::Pad", "Pad005")
pad6.Profile = sketch10
pad6.Length = 1
body17 = doc.addObject("PartDesign::Body", "Body016")
doc.recompute()

body16.Placement = App.Placement(V(0, 2.92, -0.63), App.Rotation(V(0, 0, 1), 0))
boolean13 = body17.newObject("PartDesign::Boolean", "Boolean012")
boolean13.Type = "Fuse"
boolean13.addObjects([body16])
doc.recompute()

fillet8 = body17.newObject("PartDesign::Fillet", "Fillet007")
fillet8.Base = (boolean13, edges_at(boolean13, [
    (0.254, 1.92, 10.233),
    (0.852, 1.92, 11.11),
    (1.385, 1.92, 11.729),
    (2.124, 1.92, 12.33),
    (2.949, 1.92, 12.743),
    (4.032, 1.92, 13.293),
    (4.565, 1.92, 12.708),
    (3.826, 1.92, 11.866),
    (3.327, 1.92, 11.299),
    (2.657, 1.92, 10.749),
    (2.038, 1.92, 10.284),
    (1.522, 1.92, 9.614),
]))
fillet8.Radius = 0.35
doc.recompute()

fillet9 = body17.newObject("PartDesign::Fillet", "Fillet008")
fillet9.Base = (fillet8, edges_at(fillet8, [
    (0.254, 2.92, 10.233),
    (0.852, 2.92, 11.11),
    (1.385, 2.92, 11.729),
    (2.124, 2.92, 12.33),
    (2.949, 2.92, 12.743),
    (4.032, 2.92, 13.293),
    (4.565, 2.92, 12.708),
    (3.826, 2.92, 11.866),
    (3.327, 2.92, 11.299),
    (2.657, 2.92, 10.749),
    (2.038, 2.92, 10.284),
    (1.522, 2.92, 9.614),
]))
fillet9.Radius = 0.35
body18 = doc.addObject("PartDesign::Body", "Body017")
doc.recompute()

body17.Placement = App.Placement(V(2.187084, -0.53, -2.294323), App.Rotation(V(0, 1, 0), 12))
boolean14 = body18.newObject("PartDesign::Boolean", "Boolean013")
boolean14.Type = "Fuse"
boolean14.addObjects([body17])
body19 = doc.addObject("PartDesign::Body", "Body018")

# Sketch on XZ plane
sketch11 = body19.newObject("Sketcher::SketchObject", "Sketch010")
sketch11.AttachmentSupport = (doc.getObject("XZ_Plane018"), [""])
sketch11.MapMode = "FlatFace"
sketch11.addGeometry([
    Part.LineSegment(V(0.507839, 11.756815, 0), V(0, 9.968854, 0)),  # 0
    Part.LineSegment(V(0, 9.968854, 0), V(0.989213, 9.900086, 0)),  # 1
    Part.LineSegment(V(0.989213, 9.900086, 0), V(2.055113, 10.587764, 0)),  # 2
    Part.LineSegment(V(2.055113, 10.587764, 0), V(2.020727, 11.241057, 0)),  # 3
    Part.LineSegment(V(2.020727, 11.241057, 0), V(3.292933, 11.516129, 0)),  # 4
    Part.LineSegment(V(3.292933, 11.516129, 0), V(3.361698, 12.34134, 0)),  # 5
    Part.LineSegment(V(3.361698, 12.34134, 0), V(4.290064, 12.650796, 0)),  # 6
    Part.LineSegment(V(4.290064, 12.650796, 0), V(4.840206, 14.02615, 0)),  # 7
    Part.LineSegment(V(4.840206, 14.02615, 0), V(3.224165, 13.819846, 0)),  # 8
    Part.LineSegment(V(3.224165, 13.819846, 0), V(2.674022, 12.925866, 0)),  # 9
    Part.LineSegment(V(2.674022, 12.925866, 0), V(1.573738, 12.994634, 0)),  # 10
    Part.LineSegment(V(1.573738, 12.994634, 0), V(1.195516, 11.722431, 0)),  # 11
    Part.LineSegment(V(1.195516, 11.722431, 0), V(0.507839, 11.756815, 0)),  # 12
], False)
sketch11.addConstraint([
    Sketcher.Constraint("Coincident", 0, 2, 1, 1),
    Sketcher.Constraint("Coincident", 1, 2, 2, 1),
    Sketcher.Constraint("Coincident", 2, 2, 3, 1),
    Sketcher.Constraint("Coincident", 3, 2, 4, 1),
    Sketcher.Constraint("Coincident", 4, 2, 5, 1),
    Sketcher.Constraint("Coincident", 5, 2, 6, 1),
    Sketcher.Constraint("Coincident", 6, 2, 7, 1),
    Sketcher.Constraint("Coincident", 7, 2, 8, 1),
    Sketcher.Constraint("Coincident", 8, 2, 9, 1),
    Sketcher.Constraint("Coincident", 9, 2, 10, 1),
    Sketcher.Constraint("Coincident", 10, 2, 11, 1),
    Sketcher.Constraint("Coincident", 11, 2, 12, 1),
    Sketcher.Constraint("Coincident", 12, 2, 0, 1),
    Sketcher.Constraint("PointOnObject", 0, 2, -2),
    Sketcher.Constraint("Distance", 1, 0.9916),
    Sketcher.Constraint("Distance", 7, 1.481302),
    Sketcher.Constraint("DistanceX", -1, 1, 5, 2, 3.361698),
    Sketcher.Constraint("DistanceX", 1, 2, 2, 2, 1.0659),
    Sketcher.Constraint("DistanceX", 8, 2, 6, 2, 1.065899),
    Sketcher.Constraint("DistanceX", 12, 2, 10, 2, 1.065899),
    Sketcher.Constraint("Distance", 2, 1.268481),
    Sketcher.Constraint("Distance", 5, 0.828071),
    Sketcher.Constraint("Distance", 10, 1.102431),
    Sketcher.Constraint("DistanceY", -1, 1, 4, 2, 11.516129),
    Sketcher.Constraint("DistanceY", -1, 1, 5, 2, 12.34134),
    Sketcher.Constraint("DistanceY", -1, 1, 7, 2, 14.02615),
    Sketcher.Constraint("DistanceX", -1, 1, 9, 2, 2.674022),
    Sketcher.Constraint("DistanceX", -1, 1, 10, 2, 1.573738),
    Sketcher.Constraint("DistanceY", -1, 1, 11, 2, 11.722431),
    Sketcher.Constraint("DistanceY", 1, 2, 0, 2, 0.068768),
    Sketcher.Constraint("DistanceY", 1, 2, 3, 2, 1.340971),
    Sketcher.Constraint("DistanceY", 3, 2, 4, 2, 0.275072),
    Sketcher.Constraint("DistanceX", 3, 2, 5, 2, 1.340971),
    Sketcher.Constraint("DistanceX", 4, 2, 6, 2, 0.997131),
    Sketcher.Constraint("DistanceY", 3, 2, 6, 2, 1.409739),
    Sketcher.Constraint("DistanceY", 6, 2, 8, 2, 1.16905),
    Sketcher.Constraint("DistanceY", 9, 2, 8, 2, 0.89398),
    Sketcher.Constraint("DistanceX", 11, 2, 3, 2, 0.825211),
    Sketcher.Constraint("DistanceY", 12, 2, 10, 2, 1.237819),
])
pad7 = body19.newObject("PartDesign::Pad", "Pad006")
pad7.Profile = sketch11
pad7.Length = 1
body20 = doc.addObject("PartDesign::Body", "Body019")
doc.recompute()

body19.Placement = App.Placement(V(0, 2.92, -0.63), App.Rotation(V(0, 0, 1), 0))
boolean15 = body20.newObject("PartDesign::Boolean", "Boolean014")
boolean15.Type = "Fuse"
boolean15.addObjects([body19])
doc.recompute()

fillet10 = body20.newObject("PartDesign::Fillet", "Fillet009")
fillet10.Base = (boolean15, edges_at(boolean15, [
    (0.254, 1.92, 10.233),
    (0.852, 1.92, 11.11),
    (1.385, 1.92, 11.729),
    (2.124, 1.92, 12.33),
    (2.949, 1.92, 12.743),
    (4.032, 1.92, 13.293),
    (4.565, 1.92, 12.708),
    (3.826, 1.92, 11.866),
    (3.327, 1.92, 11.299),
    (2.657, 1.92, 10.749),
    (2.038, 1.92, 10.284),
    (1.522, 1.92, 9.614),
]))
fillet10.Radius = 0.35
doc.recompute()

fillet11 = body20.newObject("PartDesign::Fillet", "Fillet010")
fillet11.Base = (fillet10, edges_at(fillet10, [
    (0.254, 2.92, 10.233),
    (0.852, 2.92, 11.11),
    (1.385, 2.92, 11.729),
    (2.124, 2.92, 12.33),
    (2.949, 2.92, 12.743),
    (4.032, 2.92, 13.293),
    (4.565, 2.92, 12.708),
    (3.826, 2.92, 11.866),
    (3.327, 2.92, 11.299),
    (2.657, 2.92, 10.749),
    (2.038, 2.92, 10.284),
    (1.522, 2.92, 9.614),
]))
fillet11.Radius = 0.35
body21 = doc.addObject("PartDesign::Body", "Body020")
doc.recompute()

body20.Placement = App.Placement(V(0.337681, -0.53, -3.185653), App.Rotation(V(0, 1, 0), 29))
boolean16 = body21.newObject("PartDesign::Boolean", "Boolean015")
boolean16.Type = "Fuse"
boolean16.addObjects([body20])
body22 = doc.addObject("PartDesign::Body", "Body021")

# Sketch on XZ plane
sketch12 = body22.newObject("Sketcher::SketchObject", "Sketch011")
sketch12.AttachmentSupport = (doc.getObject("XZ_Plane021"), [""])
sketch12.MapMode = "FlatFace"
sketch12.addGeometry([
    Part.LineSegment(V(0.507839, 11.756815, 0), V(0, 9.96615, 0)),  # 0
    Part.LineSegment(V(0, 9.96615, 0), V(0.989213, 9.900086, 0)),  # 1
    Part.LineSegment(V(0.989213, 9.900086, 0), V(2.055113, 10.587764, 0)),  # 2
    Part.LineSegment(V(2.055113, 10.587764, 0), V(2.020727, 11.241057, 0)),  # 3
    Part.LineSegment(V(2.020727, 11.241057, 0), V(3.292933, 11.516129, 0)),  # 4
    Part.LineSegment(V(3.292933, 11.516129, 0), V(3.361698, 12.34134, 0)),  # 5
    Part.LineSegment(V(3.361698, 12.34134, 0), V(4.290064, 12.650796, 0)),  # 6
    Part.LineSegment(V(4.290064, 12.650796, 0), V(4.840206, 14.02615, 0)),  # 7
    Part.LineSegment(V(4.840206, 14.02615, 0), V(3.224165, 13.819846, 0)),  # 8
    Part.LineSegment(V(3.224165, 13.819846, 0), V(2.674022, 12.925866, 0)),  # 9
    Part.LineSegment(V(2.674022, 12.925866, 0), V(1.573738, 12.994634, 0)),  # 10
    Part.LineSegment(V(1.573738, 12.994634, 0), V(1.195516, 11.722431, 0)),  # 11
    Part.LineSegment(V(1.195516, 11.722431, 0), V(0.507839, 11.756815, 0)),  # 12
], False)
sketch12.addConstraint([
    Sketcher.Constraint("Coincident", 0, 2, 1, 1),
    Sketcher.Constraint("Coincident", 1, 2, 2, 1),
    Sketcher.Constraint("Coincident", 2, 2, 3, 1),
    Sketcher.Constraint("Coincident", 3, 2, 4, 1),
    Sketcher.Constraint("Coincident", 4, 2, 5, 1),
    Sketcher.Constraint("Coincident", 5, 2, 6, 1),
    Sketcher.Constraint("Coincident", 6, 2, 7, 1),
    Sketcher.Constraint("Coincident", 7, 2, 8, 1),
    Sketcher.Constraint("Coincident", 8, 2, 9, 1),
    Sketcher.Constraint("Coincident", 9, 2, 10, 1),
    Sketcher.Constraint("Coincident", 10, 2, 11, 1),
    Sketcher.Constraint("Coincident", 11, 2, 12, 1),
    Sketcher.Constraint("Coincident", 12, 2, 0, 1),
    Sketcher.Constraint("PointOnObject", 0, 2, -2),
    Sketcher.Constraint("Distance", 7, 1.481302),
    Sketcher.Constraint("DistanceX", -1, 1, 5, 2, 3.361698),
    Sketcher.Constraint("DistanceX", 1, 2, 2, 2, 1.0659),
    Sketcher.Constraint("DistanceX", 8, 2, 6, 2, 1.065899),
    Sketcher.Constraint("DistanceX", 12, 2, 10, 2, 1.065899),
    Sketcher.Constraint("Distance", 2, 1.268481),
    Sketcher.Constraint("Distance", 5, 0.828071),
    Sketcher.Constraint("Distance", 10, 1.102431),
    Sketcher.Constraint("DistanceY", -1, 1, 0, 2, 9.96615),
    Sketcher.Constraint("DistanceY", -1, 1, 4, 2, 11.516129),
    Sketcher.Constraint("DistanceY", -1, 1, 5, 2, 12.34134),
    Sketcher.Constraint("DistanceY", -1, 1, 7, 2, 14.02615),
    Sketcher.Constraint("DistanceX", -1, 1, 9, 2, 2.674022),
    Sketcher.Constraint("DistanceX", -1, 1, 10, 2, 1.573738),
    Sketcher.Constraint("DistanceY", -1, 1, 11, 2, 11.722431),
    Sketcher.Constraint("DistanceY", 1, 2, 3, 2, 1.340971),
    Sketcher.Constraint("DistanceY", 3, 2, 4, 2, 0.275072),
    Sketcher.Constraint("DistanceX", 2, 2, 4, 2, 1.23782),
    Sketcher.Constraint("DistanceX", 3, 2, 5, 2, 1.340971),
    Sketcher.Constraint("DistanceX", 4, 2, 6, 2, 0.997131),
    Sketcher.Constraint("DistanceY", 3, 2, 6, 2, 1.409739),
    Sketcher.Constraint("DistanceY", 6, 2, 8, 2, 1.16905),
    Sketcher.Constraint("DistanceY", 9, 2, 8, 2, 0.89398),
    Sketcher.Constraint("DistanceX", 11, 2, 3, 2, 0.825211),
    Sketcher.Constraint("DistanceY", 12, 2, 10, 2, 1.237819),
])
pad8 = body22.newObject("PartDesign::Pad", "Pad007")
pad8.Profile = sketch12
pad8.Length = 1
body23 = doc.addObject("PartDesign::Body", "Body022")
doc.recompute()

body22.Placement = App.Placement(V(0, 2.92, -0.63), App.Rotation(V(0, 0, 1), 0))
boolean17 = body23.newObject("PartDesign::Boolean", "Boolean016")
boolean17.Type = "Fuse"
boolean17.addObjects([body22])
doc.recompute()

fillet12 = body23.newObject("PartDesign::Fillet", "Fillet011")
fillet12.Base = (boolean17, edges_at(boolean17, [
    (0.254, 1.92, 10.231),
    (0.852, 1.92, 11.11),
    (1.385, 1.92, 11.729),
    (2.124, 1.92, 12.33),
    (2.949, 1.92, 12.743),
    (4.032, 1.92, 13.293),
    (4.565, 1.92, 12.708),
    (3.826, 1.92, 11.866),
    (3.327, 1.92, 11.299),
    (2.657, 1.92, 10.749),
    (2.038, 1.92, 10.284),
    (1.522, 1.92, 9.614),
]))
fillet12.Radius = 0.35
doc.recompute()

fillet13 = body23.newObject("PartDesign::Fillet", "Fillet012")
fillet13.Base = (fillet12, edges_at(fillet12, [
    (0.254, 2.92, 10.231),
    (0.852, 2.92, 11.11),
    (1.385, 2.92, 11.729),
    (2.124, 2.92, 12.33),
    (2.949, 2.92, 12.743),
    (4.032, 2.92, 13.293),
    (4.565, 2.92, 12.708),
    (3.826, 2.92, 11.866),
    (3.327, 2.92, 11.299),
    (2.657, 2.92, 10.749),
    (2.038, 2.92, 10.284),
    (1.522, 2.92, 9.614),
]))
fillet13.Radius = 0.35
body24 = doc.addObject("PartDesign::Body", "Body023")
body24.AllowCompound = True
doc.recompute()

body23.Placement = App.Placement(V(2.91, -0.53, -0.52), App.Rotation(V(0, 0, 1), 0))
boolean18 = body24.newObject("PartDesign::Boolean", "Boolean017")
boolean18.Type = "Fuse"
boolean18.addObjects([body23])
doc.recompute()

boolean19 = body24.newObject("PartDesign::Boolean", "Boolean018")
boolean19.Type = "Fuse"
boolean19.addObjects([body18])
doc.recompute()

boolean20 = body24.newObject("PartDesign::Boolean", "Boolean019")
boolean20.Type = "Fuse"
boolean20.addObjects([body21])
body25 = doc.addObject("PartDesign::Body", "Body024")
body25.AllowCompound = True
doc.recompute()

body24.Placement = App.Placement(V(0.102025, 4.120197, -0.07), App.Rotation(V(0, 0, 1), 177))
boolean21 = body25.newObject("PartDesign::Boolean", "Boolean020")
boolean21.Type = "Fuse"
boolean21.addObjects([body24])
doc.recompute()

boolean22 = body25.newObject("PartDesign::Boolean", "Boolean021")
boolean22.Type = "Fuse"
boolean22.addObjects([body15])
doc.recompute()

boolean23 = body25.newObject("PartDesign::Boolean", "Boolean022")
boolean23.Type = "Fuse"
boolean23.addObjects([body2])
doc.recompute()

boolean24 = body25.newObject("PartDesign::Boolean", "Boolean023")
boolean24.Type = "Fuse"
boolean24.addObjects([body6])

doc.recompute()
